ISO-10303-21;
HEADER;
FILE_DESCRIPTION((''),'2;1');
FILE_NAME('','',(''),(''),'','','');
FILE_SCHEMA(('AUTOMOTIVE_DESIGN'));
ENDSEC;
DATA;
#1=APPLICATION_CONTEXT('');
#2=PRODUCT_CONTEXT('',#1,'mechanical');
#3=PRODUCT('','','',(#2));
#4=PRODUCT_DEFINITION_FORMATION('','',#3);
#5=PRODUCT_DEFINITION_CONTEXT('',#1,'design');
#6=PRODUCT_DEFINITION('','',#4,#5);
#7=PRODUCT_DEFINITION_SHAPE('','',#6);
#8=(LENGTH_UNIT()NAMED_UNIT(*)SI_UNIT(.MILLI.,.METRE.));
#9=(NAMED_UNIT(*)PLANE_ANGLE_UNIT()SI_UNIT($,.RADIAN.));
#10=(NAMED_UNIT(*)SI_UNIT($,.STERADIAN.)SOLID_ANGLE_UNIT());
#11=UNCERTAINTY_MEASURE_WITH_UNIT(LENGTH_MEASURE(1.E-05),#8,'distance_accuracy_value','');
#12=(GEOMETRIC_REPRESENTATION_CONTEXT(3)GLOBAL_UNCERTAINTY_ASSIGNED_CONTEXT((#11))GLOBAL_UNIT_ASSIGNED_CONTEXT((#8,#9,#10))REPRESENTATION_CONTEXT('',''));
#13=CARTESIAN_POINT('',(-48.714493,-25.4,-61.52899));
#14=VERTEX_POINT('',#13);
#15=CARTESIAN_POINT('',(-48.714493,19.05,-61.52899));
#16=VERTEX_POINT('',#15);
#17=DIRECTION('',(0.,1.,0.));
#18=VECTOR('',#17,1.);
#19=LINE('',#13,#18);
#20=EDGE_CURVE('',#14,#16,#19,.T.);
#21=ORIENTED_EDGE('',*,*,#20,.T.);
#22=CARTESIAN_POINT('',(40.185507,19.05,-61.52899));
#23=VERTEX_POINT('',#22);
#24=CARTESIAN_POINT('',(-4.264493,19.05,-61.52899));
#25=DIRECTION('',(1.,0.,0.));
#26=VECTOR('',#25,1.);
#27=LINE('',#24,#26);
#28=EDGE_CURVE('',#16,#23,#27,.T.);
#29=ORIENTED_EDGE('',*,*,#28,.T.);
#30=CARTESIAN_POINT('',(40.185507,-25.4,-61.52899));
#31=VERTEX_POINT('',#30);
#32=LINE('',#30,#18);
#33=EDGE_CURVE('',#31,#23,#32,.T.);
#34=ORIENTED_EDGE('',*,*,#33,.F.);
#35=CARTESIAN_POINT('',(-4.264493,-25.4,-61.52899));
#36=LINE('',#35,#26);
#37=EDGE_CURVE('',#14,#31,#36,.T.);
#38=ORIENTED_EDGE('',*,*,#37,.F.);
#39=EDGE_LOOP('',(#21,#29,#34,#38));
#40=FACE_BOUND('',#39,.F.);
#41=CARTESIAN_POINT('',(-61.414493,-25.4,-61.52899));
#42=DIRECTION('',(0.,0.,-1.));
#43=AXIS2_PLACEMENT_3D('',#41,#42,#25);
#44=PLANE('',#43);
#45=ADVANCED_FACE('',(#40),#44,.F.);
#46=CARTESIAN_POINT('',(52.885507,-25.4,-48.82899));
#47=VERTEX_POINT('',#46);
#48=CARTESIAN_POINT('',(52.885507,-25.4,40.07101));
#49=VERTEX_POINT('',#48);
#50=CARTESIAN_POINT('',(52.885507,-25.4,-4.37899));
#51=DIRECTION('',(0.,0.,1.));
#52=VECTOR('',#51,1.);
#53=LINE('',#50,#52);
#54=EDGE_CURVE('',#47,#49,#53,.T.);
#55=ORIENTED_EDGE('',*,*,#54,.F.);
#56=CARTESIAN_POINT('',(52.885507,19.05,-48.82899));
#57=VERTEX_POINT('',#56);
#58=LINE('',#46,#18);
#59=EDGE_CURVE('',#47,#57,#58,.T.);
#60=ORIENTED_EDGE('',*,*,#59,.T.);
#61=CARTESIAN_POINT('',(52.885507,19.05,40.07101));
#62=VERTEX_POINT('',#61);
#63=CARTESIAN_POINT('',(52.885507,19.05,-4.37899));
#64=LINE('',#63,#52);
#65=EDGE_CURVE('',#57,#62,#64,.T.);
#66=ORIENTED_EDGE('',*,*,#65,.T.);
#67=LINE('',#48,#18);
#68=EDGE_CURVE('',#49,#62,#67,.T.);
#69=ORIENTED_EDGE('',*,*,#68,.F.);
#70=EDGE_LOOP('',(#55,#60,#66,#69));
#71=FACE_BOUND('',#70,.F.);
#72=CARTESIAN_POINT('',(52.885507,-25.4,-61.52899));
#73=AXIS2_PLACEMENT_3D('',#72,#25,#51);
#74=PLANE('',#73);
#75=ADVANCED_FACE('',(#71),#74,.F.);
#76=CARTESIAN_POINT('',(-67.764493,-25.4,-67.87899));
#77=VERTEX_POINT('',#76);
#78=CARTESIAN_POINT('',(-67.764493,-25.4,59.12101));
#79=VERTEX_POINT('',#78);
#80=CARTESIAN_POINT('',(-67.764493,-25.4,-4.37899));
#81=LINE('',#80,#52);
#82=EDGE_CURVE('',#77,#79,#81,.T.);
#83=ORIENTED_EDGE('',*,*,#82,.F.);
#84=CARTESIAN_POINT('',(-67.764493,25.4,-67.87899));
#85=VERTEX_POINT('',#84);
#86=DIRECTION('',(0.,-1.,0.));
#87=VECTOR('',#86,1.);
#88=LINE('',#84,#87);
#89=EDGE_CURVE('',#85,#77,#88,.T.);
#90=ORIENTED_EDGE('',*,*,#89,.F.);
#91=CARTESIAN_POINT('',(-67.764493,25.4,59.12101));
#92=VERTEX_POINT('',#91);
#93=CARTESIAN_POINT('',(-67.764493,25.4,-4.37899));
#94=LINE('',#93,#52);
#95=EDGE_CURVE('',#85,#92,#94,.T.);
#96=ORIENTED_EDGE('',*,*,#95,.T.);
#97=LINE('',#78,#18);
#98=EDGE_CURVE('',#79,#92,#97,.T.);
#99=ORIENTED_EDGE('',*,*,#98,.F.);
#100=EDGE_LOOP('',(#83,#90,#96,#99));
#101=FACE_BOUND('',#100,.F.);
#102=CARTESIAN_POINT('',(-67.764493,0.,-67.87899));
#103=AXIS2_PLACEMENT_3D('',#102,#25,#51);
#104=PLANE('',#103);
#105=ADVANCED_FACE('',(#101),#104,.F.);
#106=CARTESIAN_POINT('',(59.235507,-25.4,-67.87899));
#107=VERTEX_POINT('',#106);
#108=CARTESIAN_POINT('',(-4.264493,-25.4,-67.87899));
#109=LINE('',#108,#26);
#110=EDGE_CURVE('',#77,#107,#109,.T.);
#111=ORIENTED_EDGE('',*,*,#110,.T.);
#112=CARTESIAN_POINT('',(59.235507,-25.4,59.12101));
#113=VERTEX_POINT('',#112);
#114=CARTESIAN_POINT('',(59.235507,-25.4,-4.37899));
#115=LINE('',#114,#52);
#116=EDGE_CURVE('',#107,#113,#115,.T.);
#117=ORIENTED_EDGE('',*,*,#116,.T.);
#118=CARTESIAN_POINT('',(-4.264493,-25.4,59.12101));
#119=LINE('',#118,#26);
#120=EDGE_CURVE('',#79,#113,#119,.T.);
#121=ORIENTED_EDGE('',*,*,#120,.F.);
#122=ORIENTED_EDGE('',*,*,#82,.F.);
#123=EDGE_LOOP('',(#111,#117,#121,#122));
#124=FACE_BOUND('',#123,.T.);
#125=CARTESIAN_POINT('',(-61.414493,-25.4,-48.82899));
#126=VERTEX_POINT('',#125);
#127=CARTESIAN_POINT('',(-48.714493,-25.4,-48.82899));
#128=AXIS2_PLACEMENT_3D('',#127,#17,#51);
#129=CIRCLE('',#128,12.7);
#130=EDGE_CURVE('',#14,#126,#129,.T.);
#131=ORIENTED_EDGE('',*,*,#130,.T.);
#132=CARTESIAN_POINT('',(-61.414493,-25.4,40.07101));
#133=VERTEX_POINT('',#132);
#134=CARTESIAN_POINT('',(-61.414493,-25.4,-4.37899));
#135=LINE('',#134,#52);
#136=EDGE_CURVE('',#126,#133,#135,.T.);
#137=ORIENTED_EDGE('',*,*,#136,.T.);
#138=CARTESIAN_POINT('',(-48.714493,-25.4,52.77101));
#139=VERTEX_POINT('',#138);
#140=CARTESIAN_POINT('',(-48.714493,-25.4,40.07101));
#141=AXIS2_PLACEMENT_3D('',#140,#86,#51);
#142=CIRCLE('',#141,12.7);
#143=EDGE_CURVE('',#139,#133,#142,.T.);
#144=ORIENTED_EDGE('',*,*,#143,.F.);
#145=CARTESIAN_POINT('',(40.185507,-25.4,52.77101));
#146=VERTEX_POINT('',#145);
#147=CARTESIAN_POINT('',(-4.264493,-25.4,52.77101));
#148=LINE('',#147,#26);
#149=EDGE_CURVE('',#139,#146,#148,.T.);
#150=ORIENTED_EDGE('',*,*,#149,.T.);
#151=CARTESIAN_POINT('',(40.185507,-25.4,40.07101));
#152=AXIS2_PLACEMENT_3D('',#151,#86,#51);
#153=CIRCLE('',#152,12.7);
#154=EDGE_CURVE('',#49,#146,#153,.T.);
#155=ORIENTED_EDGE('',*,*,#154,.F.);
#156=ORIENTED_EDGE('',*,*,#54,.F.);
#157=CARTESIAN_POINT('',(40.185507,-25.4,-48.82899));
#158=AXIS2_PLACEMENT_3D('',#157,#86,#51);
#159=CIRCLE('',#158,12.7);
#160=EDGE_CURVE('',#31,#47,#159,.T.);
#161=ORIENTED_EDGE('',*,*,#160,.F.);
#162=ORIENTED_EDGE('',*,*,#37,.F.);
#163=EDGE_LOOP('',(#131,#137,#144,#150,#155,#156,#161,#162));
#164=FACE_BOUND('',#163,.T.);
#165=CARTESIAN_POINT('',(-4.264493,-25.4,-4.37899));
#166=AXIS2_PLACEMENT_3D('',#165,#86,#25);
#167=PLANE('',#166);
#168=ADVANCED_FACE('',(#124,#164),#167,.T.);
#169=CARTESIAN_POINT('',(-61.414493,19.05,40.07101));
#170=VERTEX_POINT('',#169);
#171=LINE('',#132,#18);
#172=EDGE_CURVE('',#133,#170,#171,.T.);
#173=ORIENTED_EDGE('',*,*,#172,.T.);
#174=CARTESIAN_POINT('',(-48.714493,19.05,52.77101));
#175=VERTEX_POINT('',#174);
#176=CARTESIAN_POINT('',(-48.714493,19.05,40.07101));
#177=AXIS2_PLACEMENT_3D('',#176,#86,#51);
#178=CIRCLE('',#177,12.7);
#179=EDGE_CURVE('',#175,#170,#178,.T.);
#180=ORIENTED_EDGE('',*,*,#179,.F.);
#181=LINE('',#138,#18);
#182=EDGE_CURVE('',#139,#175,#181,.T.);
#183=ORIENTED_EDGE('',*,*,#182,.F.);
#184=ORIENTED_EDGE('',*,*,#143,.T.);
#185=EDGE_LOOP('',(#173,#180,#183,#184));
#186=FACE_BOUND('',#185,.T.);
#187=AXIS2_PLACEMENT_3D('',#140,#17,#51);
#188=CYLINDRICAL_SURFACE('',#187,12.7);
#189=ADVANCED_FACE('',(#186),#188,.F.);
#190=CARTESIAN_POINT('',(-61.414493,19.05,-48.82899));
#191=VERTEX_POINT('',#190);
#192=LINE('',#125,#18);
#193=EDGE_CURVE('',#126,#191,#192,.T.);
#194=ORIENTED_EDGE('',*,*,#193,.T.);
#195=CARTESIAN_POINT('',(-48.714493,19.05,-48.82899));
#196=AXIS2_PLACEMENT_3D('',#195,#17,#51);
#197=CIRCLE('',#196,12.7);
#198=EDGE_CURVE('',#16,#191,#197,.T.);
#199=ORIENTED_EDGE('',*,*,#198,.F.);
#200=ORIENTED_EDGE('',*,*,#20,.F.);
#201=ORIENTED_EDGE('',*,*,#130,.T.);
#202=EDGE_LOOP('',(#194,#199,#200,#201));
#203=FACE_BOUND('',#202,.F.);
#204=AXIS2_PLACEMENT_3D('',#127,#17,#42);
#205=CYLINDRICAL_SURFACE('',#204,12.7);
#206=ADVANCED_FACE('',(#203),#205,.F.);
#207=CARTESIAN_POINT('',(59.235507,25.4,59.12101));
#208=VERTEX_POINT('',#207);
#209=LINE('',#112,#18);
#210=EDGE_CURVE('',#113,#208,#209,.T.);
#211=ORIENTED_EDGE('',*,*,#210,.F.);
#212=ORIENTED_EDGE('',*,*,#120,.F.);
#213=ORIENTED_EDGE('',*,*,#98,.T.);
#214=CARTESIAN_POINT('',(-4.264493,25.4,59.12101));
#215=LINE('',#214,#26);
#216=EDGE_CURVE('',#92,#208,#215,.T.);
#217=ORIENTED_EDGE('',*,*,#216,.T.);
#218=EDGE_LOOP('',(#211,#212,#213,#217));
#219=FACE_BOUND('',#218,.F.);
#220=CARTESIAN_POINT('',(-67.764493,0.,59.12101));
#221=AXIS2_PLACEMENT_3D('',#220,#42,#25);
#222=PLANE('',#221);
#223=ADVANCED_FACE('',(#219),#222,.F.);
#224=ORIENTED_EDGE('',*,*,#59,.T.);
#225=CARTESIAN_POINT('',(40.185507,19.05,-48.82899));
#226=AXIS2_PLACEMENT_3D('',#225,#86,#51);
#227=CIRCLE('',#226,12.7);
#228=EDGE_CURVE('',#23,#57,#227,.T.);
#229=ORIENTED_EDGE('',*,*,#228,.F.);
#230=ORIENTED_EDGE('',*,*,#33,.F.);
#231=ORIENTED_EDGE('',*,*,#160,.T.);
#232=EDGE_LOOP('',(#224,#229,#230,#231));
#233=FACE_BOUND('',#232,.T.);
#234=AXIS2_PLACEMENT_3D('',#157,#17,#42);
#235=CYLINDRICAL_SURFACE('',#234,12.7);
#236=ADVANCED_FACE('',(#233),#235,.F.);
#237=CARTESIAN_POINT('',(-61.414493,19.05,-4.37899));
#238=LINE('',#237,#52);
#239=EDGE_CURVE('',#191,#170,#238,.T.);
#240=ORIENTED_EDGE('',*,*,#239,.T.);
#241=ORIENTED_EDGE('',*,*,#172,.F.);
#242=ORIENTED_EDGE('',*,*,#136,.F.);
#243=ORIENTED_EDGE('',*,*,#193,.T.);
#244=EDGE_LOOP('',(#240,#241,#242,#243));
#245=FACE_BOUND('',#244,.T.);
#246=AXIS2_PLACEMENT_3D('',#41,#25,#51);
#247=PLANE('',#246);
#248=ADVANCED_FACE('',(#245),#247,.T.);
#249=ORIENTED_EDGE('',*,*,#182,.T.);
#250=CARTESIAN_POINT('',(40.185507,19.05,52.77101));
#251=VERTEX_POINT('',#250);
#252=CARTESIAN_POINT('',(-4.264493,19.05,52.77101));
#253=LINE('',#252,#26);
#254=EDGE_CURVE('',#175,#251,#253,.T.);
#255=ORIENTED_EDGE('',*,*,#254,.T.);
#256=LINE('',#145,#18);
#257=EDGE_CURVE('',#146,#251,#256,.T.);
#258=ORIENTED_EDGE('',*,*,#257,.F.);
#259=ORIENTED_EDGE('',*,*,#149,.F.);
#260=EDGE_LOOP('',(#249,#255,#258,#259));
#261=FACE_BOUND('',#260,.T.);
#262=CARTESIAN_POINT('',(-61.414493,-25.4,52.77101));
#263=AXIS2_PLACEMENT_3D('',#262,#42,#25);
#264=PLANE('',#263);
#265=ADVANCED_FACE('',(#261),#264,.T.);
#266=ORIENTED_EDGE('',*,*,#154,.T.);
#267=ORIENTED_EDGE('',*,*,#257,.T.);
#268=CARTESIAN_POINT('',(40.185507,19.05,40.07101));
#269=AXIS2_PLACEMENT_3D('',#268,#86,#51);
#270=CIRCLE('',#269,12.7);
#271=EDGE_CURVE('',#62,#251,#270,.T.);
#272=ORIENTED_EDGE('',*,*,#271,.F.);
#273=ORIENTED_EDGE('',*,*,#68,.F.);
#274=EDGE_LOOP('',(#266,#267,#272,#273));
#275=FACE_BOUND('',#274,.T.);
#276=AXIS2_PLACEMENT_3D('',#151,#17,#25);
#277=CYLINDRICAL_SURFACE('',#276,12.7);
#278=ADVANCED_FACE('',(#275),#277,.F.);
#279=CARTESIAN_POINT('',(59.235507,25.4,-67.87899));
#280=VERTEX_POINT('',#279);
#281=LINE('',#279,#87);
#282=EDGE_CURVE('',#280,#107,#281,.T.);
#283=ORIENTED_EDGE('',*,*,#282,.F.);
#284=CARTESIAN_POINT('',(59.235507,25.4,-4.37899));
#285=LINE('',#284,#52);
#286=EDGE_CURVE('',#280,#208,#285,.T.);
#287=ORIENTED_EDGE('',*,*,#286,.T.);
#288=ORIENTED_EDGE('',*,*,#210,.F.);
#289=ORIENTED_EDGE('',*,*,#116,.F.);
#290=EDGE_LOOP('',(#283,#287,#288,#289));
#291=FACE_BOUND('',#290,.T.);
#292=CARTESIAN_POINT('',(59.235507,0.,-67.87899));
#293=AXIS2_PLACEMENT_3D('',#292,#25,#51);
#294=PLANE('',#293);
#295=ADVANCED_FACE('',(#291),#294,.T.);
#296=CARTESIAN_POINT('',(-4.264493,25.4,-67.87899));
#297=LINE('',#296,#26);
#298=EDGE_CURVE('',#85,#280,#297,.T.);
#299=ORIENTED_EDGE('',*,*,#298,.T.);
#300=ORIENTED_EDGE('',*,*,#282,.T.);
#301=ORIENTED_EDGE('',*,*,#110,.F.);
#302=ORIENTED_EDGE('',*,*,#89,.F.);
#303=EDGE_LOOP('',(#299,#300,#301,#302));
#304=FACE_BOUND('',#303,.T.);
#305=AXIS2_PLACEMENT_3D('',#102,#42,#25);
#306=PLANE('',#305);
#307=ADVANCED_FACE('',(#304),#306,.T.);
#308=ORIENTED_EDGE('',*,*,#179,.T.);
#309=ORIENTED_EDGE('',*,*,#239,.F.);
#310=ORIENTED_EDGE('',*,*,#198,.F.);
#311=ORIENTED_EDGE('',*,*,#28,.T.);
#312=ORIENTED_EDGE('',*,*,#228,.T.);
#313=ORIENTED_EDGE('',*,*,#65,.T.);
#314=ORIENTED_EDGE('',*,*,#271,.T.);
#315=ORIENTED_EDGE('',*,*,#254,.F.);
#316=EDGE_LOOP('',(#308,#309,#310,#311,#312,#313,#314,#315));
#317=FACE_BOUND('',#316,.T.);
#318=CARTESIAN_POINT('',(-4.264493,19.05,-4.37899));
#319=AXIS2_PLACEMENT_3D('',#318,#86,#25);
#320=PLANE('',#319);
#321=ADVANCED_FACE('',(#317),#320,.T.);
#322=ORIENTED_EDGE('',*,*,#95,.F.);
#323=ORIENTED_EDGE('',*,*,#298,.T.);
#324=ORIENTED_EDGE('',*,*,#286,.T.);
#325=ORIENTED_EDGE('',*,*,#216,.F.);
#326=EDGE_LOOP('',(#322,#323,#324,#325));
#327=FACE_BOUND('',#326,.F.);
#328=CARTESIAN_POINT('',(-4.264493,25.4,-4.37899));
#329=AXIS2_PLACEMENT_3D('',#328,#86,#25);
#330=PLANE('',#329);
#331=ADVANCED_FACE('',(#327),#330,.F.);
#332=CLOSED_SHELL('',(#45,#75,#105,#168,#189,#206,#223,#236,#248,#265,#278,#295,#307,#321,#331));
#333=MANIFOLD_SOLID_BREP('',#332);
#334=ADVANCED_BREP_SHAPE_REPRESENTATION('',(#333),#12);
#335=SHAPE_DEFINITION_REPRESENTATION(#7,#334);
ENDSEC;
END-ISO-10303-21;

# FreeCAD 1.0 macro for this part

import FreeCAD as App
import Part
import Sketcher
from FreeCAD import Vector
Q = App.Units.Quantity


def edges_at(feature, points):
    """Names of the edges that pass closest to the given points."""
    edges = feature.Shape.Edges
    near = lambda p: min(range(len(edges)), key=lambda i: edges[i].distToShape(Part.Vertex(*p))[0])
    return sorted({f"Edge{near(p) + 1}" for p in points})

doc = App.newDocument("Part")
params = doc.addObject("Spreadsheet::Sheet", "Params")
for row, (alias, value) in enumerate([
    ("sketch1_width", "5 in"),
    ("pad1_length", "1 in"),
    ("pad1_length2", "1 in"),
    ("sketch2_width", "4.5 in"),
    ("pocket1_length", "1.75 in"),
    ("fillet_radius", "0.5 in"),
], start=1):
    params.set(f"A{row}", alias)
    params.set(f"B{row}", "=" + value)
    params.setAlias(f"B{row}", alias)

body = doc.addObject("PartDesign::Body", "Body")

# Sketch on XZ plane
sketch1 = body.newObject("Sketcher::SketchObject", "Sketch")
sketch1.AttachmentSupport = (doc.getObject("XZ_Plane"), [""])
sketch1.MapMode = "FlatFace"
sketch1.addGeometry([
    Part.LineSegment(Vector(-68, 59, 0), Vector(-68, -68, 0)),
    Part.LineSegment(Vector(-68, -68, 0), Vector(59, -68, 0)),
    Part.LineSegment(Vector(59, -68, 0), Vector(59, 59, 0)),
    Part.LineSegment(Vector(59, 59, 0), Vector(-68, 59, 0)),
], False)
sketch1.addConstraint([
    Sketcher.Constraint("Coincident", 0, 2, 1, 1),
    Sketcher.Constraint("Coincident", 1, 2, 2, 1),
    Sketcher.Constraint("Coincident", 2, 2, 3, 1),
    Sketcher.Constraint("Coincident", 3, 2, 0, 1),
    Sketcher.Constraint("Vertical", 0),
    Sketcher.Constraint("Horizontal", 1),
    Sketcher.Constraint("Vertical", 2),
    Sketcher.Constraint("Horizontal", 3),
    Sketcher.Constraint("Equal", 3, 0),
    Sketcher.Constraint("DistanceX", 1, 1, 1, 2, Q("5 in")),
    Sketcher.Constraint("DistanceY", 0, 2, -1, 1, 67.87899),
    Sketcher.Constraint("DistanceX", 0, 2, -1, 1, 67.764493),
])
sketch1.setExpression("Constraints[9]", "Params.sketch1_width")
pad1 = body.newObject("PartDesign::Pad", "Pad")
pad1.Profile = sketch1
pad1.Type = "TwoLengths"
pad1.setExpression("Length", "Params.pad1_length")
pad1.setExpression("Length2", "Params.pad1_length2")

# Sketch on XZ plane
sketch2 = body.newObject("Sketcher::SketchObject", "Sketch001")
sketch2.AttachmentSupport = (doc.getObject("XZ_Plane"), [""])
sketch2.MapMode = "FlatFace"
sketch2.AttachmentOffset = App.Placement(Vector(0, 0, 1 * 25.4), App.Rotation())
sketch2.addGeometry([
    Part.LineSegment(Vector(-61, 53, 0), Vector(-61, -62, 0)),
    Part.LineSegment(Vector(-61, -62, 0), Vector(53, -62, 0)),
    Part.LineSegment(Vector(53, -62, 0), Vector(53, 53, 0)),
    Part.LineSegment(Vector(53, 53, 0), Vector(-61, 53, 0)),
], False)
sketch2.addConstraint([
    Sketcher.Constraint("Coincident", 0, 2, 1, 1),
    Sketcher.Constraint("Coincident", 1, 2, 2, 1),
    Sketcher.Constraint("Coincident", 2, 2, 3, 1),
    Sketcher.Constraint("Coincident", 3, 2, 0, 1),
    Sketcher.Constraint("Vertical", 0),
    Sketcher.Constraint("Horizontal", 1),
    Sketcher.Constraint("Vertical", 2),
    Sketcher.Constraint("Horizontal", 3),
    Sketcher.Constraint("Equal", 3, 0),
    Sketcher.Constraint("DistanceX", 1, 1, 1, 2, Q("4.5 in")),
    Sketcher.Constraint("DistanceY", 0, 2, -1, 1, 61.52899),
    Sketcher.Constraint("DistanceX", 0, 2, -1, 1, 61.414493),
])
sketch2.setExpression("Constraints[9]", "Params.sketch2_width")
pocket1 = body.newObject("PartDesign::Pocket", "Pocket")
pocket1.Profile = sketch2
pocket1.setExpression("Length", "Params.pocket1_length")
doc.recompute()

fillet = body.newObject("PartDesign::Fillet", "Fillet")
fillet.Base = (pocket1, edges_at(pocket1, [
    (-61.414, -3.175, -61.529),
    (52.886, -3.175, -61.529),
    (52.886, -3.175, 52.771),
    (-61.414, -3.175, 52.771),
]))
fillet.setExpression("Radius", "Params.fillet_radius")

doc.recompute()
